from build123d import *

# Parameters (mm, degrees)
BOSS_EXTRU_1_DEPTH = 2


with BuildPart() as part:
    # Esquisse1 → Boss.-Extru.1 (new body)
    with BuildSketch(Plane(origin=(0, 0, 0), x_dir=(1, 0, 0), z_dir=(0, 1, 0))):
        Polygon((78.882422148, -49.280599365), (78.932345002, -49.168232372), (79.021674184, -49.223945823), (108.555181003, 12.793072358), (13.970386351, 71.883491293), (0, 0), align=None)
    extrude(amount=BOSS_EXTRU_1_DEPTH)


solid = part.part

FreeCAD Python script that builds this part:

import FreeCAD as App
import Part
import Sketcher
from FreeCAD import Vector
Q = App.Units.Quantity


def add_polygon(sketch, points):
    """Adds a closed chain of lines whose ends are joined by coincident constraints."""
    first, n = sketch.GeometryCount, len(points)
    for a, b in zip(points, points[1:] + points[:1]):
        sketch.addGeometry(Part.LineSegment(App.Vector(*a, 0), App.Vector(*b, 0)), False)
    for i in range(n):
        sketch.addConstraint(Sketcher.Constraint("Coincident", first + i, 2, first + (i + 1) % n, 1))

doc = App.newDocument("Part")
body = doc.addObject("PartDesign::Body", "Body")

# Sketch on XZ plane
sketch1 = doc.addObject("Sketcher::SketchObject", "Sketch")
body.addObject(sketch1)
sketch1.AttachmentSupport = (doc.XZ_Plane, [""])
sketch1.MapMode = "FlatFace"
add_polygon(sketch1, [(78.882422, 49.280599), (78.932345, 49.168232), (79.021674, 49.223946), (108.555181, -12.793072), (13.970386, -71.883491), (0, 0)])  # lines 0-5
sketch1.addConstraint([
    Sketcher.Constraint("Coincident", 4, 2, -1, 1),
    Sketcher.Constraint("Parallel", 3, 5),
    Sketcher.Constraint("DistanceY", -1, 1, 5, 2, Q("49.280599 mm")),
    Sketcher.Constraint("Distance", 1, Q("0.105279 mm")),
    Sketcher.Constraint("DistanceX", -1, 1, 2, 2, Q("108.555181 mm")),
    Sketcher.Constraint("DistanceY", 3, 2, -1, 1, Q("71.883491 mm")),
    Sketcher.Constraint("DistanceX", 0, 2, 1, 2, Q("0.089329 mm")),
    Sketcher.Constraint("DistanceY", 2, 2, 1, 2, Q("62.017018 mm")),
    Sketcher.Constraint("DistanceY", 3, 2, 2, 2, Q("59.090419 mm")),
    Sketcher.Constraint("DistanceX", 3, 2, 0, 2, Q("64.961959 mm")),
    Sketcher.Constraint("DistanceX", 5, 2, 2, 2, Q("29.672759 mm")),
])
pad1 = doc.addObject("PartDesign::Pad", "Pad")
body.addObject(pad1)
pad1.Profile = sketch1
pad1.Length = 2
pad1.Reversed = True

doc.recompute()
